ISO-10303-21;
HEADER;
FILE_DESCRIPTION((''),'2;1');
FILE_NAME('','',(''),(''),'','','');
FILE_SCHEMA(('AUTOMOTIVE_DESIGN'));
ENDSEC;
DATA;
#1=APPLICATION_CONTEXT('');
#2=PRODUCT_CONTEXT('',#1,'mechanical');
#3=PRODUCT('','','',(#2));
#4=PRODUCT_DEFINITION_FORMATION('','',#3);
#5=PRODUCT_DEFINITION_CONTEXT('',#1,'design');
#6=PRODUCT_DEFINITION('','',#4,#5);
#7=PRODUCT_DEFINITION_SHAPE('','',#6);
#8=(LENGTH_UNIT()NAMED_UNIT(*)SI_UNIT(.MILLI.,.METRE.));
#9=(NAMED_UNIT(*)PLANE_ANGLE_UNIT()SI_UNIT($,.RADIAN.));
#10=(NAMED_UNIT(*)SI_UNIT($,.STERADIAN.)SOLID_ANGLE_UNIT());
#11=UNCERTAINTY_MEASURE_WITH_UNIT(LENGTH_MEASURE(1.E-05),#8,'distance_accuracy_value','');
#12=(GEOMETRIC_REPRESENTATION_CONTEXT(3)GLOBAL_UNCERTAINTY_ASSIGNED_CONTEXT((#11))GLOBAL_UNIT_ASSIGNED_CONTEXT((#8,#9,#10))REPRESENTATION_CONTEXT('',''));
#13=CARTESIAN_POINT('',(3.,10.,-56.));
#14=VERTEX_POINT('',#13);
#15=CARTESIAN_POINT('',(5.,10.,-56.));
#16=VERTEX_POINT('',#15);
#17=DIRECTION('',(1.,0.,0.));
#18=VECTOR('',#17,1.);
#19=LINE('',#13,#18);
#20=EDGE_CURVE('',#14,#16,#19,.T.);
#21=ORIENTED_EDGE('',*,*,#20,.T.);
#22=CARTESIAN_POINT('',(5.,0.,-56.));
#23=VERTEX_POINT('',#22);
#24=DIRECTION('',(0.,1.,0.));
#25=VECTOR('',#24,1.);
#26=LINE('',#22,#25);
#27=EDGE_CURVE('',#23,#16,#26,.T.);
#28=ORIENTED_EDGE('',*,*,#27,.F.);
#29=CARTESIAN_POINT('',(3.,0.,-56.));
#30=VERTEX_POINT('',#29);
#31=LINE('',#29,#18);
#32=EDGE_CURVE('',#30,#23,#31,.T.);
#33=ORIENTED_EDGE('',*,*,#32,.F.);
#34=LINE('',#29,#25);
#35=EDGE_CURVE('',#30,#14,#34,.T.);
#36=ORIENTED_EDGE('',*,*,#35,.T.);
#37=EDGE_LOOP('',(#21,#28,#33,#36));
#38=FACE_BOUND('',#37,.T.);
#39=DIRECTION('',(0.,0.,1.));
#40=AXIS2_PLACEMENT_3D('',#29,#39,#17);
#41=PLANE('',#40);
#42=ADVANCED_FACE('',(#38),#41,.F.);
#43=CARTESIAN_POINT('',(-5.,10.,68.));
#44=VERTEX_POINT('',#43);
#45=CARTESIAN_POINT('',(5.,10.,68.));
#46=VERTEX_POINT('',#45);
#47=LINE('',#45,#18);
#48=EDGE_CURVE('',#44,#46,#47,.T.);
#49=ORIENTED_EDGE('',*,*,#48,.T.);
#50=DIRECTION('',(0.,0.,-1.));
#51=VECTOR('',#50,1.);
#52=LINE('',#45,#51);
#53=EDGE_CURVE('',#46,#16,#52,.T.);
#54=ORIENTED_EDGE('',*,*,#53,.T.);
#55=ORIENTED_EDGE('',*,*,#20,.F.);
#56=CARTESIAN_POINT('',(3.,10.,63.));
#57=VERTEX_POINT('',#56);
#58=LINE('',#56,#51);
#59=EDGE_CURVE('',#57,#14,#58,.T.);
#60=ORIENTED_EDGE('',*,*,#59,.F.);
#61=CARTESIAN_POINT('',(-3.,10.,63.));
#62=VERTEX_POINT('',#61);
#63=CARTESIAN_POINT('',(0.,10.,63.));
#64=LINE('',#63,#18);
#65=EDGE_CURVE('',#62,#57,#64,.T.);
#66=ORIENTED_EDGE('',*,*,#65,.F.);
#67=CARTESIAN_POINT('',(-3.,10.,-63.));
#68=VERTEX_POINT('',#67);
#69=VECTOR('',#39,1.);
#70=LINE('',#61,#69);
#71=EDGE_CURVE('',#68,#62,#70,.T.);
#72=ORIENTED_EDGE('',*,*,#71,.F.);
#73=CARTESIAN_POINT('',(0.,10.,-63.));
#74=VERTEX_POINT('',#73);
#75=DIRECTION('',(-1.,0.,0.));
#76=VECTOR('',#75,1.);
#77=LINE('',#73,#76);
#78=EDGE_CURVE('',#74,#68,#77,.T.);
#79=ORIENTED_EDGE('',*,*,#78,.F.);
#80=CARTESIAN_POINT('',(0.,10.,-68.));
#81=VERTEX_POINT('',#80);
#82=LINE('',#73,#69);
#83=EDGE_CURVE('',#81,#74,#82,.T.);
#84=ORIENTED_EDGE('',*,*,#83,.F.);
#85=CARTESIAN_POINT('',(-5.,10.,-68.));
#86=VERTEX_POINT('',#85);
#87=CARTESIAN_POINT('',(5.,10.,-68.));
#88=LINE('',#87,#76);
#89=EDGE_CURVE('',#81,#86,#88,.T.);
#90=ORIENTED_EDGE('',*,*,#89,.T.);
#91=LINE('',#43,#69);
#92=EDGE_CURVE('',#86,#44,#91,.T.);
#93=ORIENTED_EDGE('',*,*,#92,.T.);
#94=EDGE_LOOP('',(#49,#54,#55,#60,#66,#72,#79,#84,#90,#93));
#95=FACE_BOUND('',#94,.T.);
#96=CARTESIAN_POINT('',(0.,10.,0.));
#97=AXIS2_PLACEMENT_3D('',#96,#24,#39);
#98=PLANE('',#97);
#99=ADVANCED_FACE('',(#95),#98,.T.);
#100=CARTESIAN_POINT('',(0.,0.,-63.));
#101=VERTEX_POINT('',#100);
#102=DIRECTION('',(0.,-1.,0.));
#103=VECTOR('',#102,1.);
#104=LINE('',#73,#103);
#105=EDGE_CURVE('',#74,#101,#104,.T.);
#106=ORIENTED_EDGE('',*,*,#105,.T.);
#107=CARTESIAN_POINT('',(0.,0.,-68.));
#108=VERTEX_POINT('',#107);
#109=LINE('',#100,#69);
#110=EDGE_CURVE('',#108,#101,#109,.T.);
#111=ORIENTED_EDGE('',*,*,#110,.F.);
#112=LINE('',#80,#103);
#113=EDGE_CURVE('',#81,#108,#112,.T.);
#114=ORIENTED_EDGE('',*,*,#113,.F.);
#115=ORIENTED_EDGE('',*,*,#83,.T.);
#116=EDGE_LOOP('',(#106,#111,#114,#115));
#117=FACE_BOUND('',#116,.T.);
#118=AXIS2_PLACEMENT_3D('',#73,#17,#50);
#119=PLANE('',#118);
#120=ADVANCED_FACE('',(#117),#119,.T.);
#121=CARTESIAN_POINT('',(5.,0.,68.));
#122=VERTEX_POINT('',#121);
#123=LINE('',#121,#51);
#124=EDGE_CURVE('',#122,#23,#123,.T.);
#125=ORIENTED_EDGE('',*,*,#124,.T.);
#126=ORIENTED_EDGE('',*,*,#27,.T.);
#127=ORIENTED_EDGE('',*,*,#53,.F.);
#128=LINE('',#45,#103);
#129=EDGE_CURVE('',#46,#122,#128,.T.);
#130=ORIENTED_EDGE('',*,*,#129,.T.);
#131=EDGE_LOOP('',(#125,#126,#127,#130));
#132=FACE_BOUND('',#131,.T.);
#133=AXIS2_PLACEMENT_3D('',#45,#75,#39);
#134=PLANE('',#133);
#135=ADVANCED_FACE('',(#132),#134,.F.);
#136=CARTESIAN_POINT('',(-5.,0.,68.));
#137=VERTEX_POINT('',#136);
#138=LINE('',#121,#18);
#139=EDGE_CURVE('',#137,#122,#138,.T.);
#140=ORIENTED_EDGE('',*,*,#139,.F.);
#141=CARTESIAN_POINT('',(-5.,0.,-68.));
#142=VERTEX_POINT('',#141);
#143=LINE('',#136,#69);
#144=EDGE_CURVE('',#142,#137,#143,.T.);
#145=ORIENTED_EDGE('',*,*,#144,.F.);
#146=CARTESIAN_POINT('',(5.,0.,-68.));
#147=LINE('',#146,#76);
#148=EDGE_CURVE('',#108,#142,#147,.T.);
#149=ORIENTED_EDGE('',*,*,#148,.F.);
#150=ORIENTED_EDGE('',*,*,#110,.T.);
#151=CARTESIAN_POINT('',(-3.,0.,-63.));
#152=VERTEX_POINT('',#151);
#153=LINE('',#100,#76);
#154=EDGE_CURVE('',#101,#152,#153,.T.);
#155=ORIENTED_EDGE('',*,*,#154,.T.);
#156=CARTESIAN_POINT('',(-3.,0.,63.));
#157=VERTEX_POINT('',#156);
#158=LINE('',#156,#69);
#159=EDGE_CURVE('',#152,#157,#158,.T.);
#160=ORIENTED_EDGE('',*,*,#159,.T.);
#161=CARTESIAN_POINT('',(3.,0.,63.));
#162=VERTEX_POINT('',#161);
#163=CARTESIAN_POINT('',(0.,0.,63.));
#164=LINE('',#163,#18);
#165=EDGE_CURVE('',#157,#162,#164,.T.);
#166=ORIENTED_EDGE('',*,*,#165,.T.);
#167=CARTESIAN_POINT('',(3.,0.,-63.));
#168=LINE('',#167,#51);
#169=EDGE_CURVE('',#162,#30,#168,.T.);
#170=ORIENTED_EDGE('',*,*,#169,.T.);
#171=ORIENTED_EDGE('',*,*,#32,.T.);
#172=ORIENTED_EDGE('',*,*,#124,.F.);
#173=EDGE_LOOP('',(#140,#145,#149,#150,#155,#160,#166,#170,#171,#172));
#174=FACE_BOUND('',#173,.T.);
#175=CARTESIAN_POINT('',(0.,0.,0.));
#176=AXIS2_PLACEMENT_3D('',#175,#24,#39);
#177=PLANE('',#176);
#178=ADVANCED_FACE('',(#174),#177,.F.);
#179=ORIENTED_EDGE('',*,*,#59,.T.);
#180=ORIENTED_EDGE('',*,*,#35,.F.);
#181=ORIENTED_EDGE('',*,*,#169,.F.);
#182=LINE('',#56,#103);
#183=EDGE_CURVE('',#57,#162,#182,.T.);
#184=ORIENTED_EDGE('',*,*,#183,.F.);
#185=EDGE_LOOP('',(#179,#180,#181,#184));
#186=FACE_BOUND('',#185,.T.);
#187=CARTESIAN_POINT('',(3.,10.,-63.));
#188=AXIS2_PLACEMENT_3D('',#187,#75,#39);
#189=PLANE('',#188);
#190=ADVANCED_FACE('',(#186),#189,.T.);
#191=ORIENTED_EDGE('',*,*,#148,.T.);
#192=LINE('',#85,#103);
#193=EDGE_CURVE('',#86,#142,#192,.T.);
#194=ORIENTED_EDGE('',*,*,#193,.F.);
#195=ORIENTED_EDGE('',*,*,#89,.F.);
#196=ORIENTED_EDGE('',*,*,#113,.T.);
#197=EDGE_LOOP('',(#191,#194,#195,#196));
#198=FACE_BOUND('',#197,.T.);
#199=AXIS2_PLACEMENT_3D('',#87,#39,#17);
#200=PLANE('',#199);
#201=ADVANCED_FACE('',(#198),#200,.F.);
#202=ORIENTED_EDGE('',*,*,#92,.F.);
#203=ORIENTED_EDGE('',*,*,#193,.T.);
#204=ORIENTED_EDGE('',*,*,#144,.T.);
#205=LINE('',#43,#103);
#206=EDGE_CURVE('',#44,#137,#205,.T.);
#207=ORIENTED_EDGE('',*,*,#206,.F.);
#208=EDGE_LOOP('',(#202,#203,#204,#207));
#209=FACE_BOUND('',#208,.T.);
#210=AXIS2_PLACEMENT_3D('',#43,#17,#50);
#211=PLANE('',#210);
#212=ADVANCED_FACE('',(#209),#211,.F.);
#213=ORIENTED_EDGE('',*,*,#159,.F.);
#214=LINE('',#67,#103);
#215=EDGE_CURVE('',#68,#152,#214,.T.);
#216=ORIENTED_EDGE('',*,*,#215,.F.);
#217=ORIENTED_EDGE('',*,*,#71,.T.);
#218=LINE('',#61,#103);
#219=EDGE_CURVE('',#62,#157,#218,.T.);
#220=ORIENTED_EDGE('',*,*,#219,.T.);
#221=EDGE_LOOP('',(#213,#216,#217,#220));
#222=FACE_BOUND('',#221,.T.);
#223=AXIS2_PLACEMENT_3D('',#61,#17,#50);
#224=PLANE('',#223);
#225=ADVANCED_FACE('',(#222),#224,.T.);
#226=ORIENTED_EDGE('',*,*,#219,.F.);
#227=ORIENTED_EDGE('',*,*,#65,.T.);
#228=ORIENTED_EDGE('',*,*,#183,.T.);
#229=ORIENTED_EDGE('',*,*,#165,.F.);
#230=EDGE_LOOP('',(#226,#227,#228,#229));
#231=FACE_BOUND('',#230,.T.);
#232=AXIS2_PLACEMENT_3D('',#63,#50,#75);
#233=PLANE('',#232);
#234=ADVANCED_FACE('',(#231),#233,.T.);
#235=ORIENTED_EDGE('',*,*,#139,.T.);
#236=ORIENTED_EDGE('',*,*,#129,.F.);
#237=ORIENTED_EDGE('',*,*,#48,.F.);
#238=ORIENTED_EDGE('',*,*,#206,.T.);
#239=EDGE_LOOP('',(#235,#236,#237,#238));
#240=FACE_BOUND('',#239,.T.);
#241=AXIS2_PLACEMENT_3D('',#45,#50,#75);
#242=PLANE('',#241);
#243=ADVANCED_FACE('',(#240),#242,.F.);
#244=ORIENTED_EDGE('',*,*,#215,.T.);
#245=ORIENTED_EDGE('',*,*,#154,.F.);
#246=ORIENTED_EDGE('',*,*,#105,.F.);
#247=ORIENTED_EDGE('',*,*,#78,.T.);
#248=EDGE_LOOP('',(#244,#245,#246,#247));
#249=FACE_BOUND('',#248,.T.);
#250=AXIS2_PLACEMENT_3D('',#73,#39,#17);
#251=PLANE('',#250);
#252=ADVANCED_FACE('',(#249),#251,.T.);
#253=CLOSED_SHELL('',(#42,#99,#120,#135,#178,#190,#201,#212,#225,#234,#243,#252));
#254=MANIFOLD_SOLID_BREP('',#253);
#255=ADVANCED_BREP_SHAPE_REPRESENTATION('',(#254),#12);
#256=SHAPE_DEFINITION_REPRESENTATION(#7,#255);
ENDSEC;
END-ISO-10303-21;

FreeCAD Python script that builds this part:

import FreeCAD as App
import Part
import Sketcher


def add_polygon(sketch, points):
    """Adds a closed chain of lines whose ends are joined by coincident constraints."""
    first, n = sketch.GeometryCount, len(points)
    for a, b in zip(points, points[1:] + points[:1]):
        sketch.addGeometry(Part.LineSegment(App.Vector(*a, 0), App.Vector(*b, 0)), False)
    for i in range(n):
        sketch.addConstraint(Sketcher.Constraint("Coincident", first + i, 2, first + (i + 1) % n, 1))

doc = App.newDocument("Part")
body = doc.addObject("PartDesign::Body", "Body")

# Sketch on XZ plane
sketch1 = doc.addObject("Sketcher::SketchObject", "Sketch")
body.addObject(sketch1)
sketch1.AttachmentSupport = (doc.XZ_Plane, [""])
sketch1.MapMode = "FlatFace"
add_polygon(sketch1, [(-5, -68), (-5, 68), (5, 68), (5, -68)])  # lines 0-3
sketch1.addConstraint(Sketcher.Constraint("Vertical", 0))
sketch1.addConstraint(Sketcher.Constraint("Horizontal", 1))
sketch1.addConstraint(Sketcher.Constraint("Vertical", 2))
sketch1.addConstraint(Sketcher.Constraint("Horizontal", 3))
sketch1.addConstraint(Sketcher.Constraint("Symmetric", 0, 2, 2, 2, -1, 1))
sketch1.addConstraint(Sketcher.Constraint("DistanceX", 1, 1, 1, 2, 10.0))
sketch1.addConstraint(Sketcher.Constraint("DistanceY", 0, 1, 0, 2, 136.0))
pad1 = doc.addObject("PartDesign::Pad", "Pad")
body.addObject(pad1)
pad1.Profile = sketch1
pad1.Length = 10
pad1.Reversed = True

# Sketch on XZ plane
sketch2 = doc.addObject("Sketcher::SketchObject", "Sketch001")
body.addObject(sketch2)
sketch2.AttachmentSupport = (doc.XZ_Plane, [""])
sketch2.MapMode = "FlatFace"
add_polygon(sketch2, [(-3, 63), (3, 63), (3, -68), (0, -68), (0, -63), (-3, -63)])  # lines 0-5
sketch2.addConstraint(Sketcher.Constraint("Horizontal", 0))
sketch2.addConstraint(Sketcher.Constraint("Vertical", 1))
sketch2.addConstraint(Sketcher.Constraint("Horizontal", 2))
sketch2.addConstraint(Sketcher.Constraint("Vertical", 3))
sketch2.addConstraint(Sketcher.Constraint("Horizontal", 4))
sketch2.addConstraint(Sketcher.Constraint("Vertical", 5))
sketch2.addConstraint(Sketcher.Constraint("Symmetric", 0, 2, 4, 2, -1, 1))
sketch2.addConstraint(Sketcher.Constraint("PointOnObject", 2, 2, -2))
sketch2.addConstraint(Sketcher.Constraint("DistanceX", 0, 1, 0, 2, 6.0))
sketch2.addConstraint(Sketcher.Constraint("DistanceY", 1, 2, 1, 1, 131.0))
sketch2.addConstraint(Sketcher.Constraint("DistanceY", 3, 1, 3, 2, 5.0))
pocket1 = doc.addObject("PartDesign::Pocket", "Pocket")
body.addObject(pocket1)
pocket1.Profile = sketch2
pocket1.Length = 10

# Sketch on XZ plane
sketch3 = doc.addObject("Sketcher::SketchObject", "Sketch002")
body.addObject(sketch3)
sketch3.AttachmentSupport = (doc.XZ_Plane, [""])
sketch3.MapMode = "FlatFace"
sketch3.AttachmentOffset = App.Placement(App.Vector(0, 0, -10), App.Rotation())
add_polygon(sketch3, [(3, -68), (3, -56), (5, -56), (5, -68)])  # lines 0-3
sketch3.addConstraint(Sketcher.Constraint("Vertical", 0))
sketch3.addConstraint(Sketcher.Constraint("Horizontal", 1))
sketch3.addConstraint(Sketcher.Constraint("Vertical", 2))
sketch3.addConstraint(Sketcher.Constraint("Horizontal", 3))
sketch3.addConstraint(Sketcher.Constraint("DistanceX", 1, 1, 1, 2, 2.0))
sketch3.addConstraint(Sketcher.Constraint("DistanceY", 0, 1, 0, 2, 12.0))
sketch3.addConstraint(Sketcher.Constraint("DistanceX", -1, 1, 0, 2, 3.0))
sketch3.addConstraint(Sketcher.Constraint("DistanceY", 0, 2, -1, 1, 56.0))
pocket2 = doc.addObject("PartDesign::Pocket", "Pocket001")
body.addObject(pocket2)
pocket2.Profile = sketch3
pocket2.Length = 10
pocket2.Reversed = True

doc.recompute()
